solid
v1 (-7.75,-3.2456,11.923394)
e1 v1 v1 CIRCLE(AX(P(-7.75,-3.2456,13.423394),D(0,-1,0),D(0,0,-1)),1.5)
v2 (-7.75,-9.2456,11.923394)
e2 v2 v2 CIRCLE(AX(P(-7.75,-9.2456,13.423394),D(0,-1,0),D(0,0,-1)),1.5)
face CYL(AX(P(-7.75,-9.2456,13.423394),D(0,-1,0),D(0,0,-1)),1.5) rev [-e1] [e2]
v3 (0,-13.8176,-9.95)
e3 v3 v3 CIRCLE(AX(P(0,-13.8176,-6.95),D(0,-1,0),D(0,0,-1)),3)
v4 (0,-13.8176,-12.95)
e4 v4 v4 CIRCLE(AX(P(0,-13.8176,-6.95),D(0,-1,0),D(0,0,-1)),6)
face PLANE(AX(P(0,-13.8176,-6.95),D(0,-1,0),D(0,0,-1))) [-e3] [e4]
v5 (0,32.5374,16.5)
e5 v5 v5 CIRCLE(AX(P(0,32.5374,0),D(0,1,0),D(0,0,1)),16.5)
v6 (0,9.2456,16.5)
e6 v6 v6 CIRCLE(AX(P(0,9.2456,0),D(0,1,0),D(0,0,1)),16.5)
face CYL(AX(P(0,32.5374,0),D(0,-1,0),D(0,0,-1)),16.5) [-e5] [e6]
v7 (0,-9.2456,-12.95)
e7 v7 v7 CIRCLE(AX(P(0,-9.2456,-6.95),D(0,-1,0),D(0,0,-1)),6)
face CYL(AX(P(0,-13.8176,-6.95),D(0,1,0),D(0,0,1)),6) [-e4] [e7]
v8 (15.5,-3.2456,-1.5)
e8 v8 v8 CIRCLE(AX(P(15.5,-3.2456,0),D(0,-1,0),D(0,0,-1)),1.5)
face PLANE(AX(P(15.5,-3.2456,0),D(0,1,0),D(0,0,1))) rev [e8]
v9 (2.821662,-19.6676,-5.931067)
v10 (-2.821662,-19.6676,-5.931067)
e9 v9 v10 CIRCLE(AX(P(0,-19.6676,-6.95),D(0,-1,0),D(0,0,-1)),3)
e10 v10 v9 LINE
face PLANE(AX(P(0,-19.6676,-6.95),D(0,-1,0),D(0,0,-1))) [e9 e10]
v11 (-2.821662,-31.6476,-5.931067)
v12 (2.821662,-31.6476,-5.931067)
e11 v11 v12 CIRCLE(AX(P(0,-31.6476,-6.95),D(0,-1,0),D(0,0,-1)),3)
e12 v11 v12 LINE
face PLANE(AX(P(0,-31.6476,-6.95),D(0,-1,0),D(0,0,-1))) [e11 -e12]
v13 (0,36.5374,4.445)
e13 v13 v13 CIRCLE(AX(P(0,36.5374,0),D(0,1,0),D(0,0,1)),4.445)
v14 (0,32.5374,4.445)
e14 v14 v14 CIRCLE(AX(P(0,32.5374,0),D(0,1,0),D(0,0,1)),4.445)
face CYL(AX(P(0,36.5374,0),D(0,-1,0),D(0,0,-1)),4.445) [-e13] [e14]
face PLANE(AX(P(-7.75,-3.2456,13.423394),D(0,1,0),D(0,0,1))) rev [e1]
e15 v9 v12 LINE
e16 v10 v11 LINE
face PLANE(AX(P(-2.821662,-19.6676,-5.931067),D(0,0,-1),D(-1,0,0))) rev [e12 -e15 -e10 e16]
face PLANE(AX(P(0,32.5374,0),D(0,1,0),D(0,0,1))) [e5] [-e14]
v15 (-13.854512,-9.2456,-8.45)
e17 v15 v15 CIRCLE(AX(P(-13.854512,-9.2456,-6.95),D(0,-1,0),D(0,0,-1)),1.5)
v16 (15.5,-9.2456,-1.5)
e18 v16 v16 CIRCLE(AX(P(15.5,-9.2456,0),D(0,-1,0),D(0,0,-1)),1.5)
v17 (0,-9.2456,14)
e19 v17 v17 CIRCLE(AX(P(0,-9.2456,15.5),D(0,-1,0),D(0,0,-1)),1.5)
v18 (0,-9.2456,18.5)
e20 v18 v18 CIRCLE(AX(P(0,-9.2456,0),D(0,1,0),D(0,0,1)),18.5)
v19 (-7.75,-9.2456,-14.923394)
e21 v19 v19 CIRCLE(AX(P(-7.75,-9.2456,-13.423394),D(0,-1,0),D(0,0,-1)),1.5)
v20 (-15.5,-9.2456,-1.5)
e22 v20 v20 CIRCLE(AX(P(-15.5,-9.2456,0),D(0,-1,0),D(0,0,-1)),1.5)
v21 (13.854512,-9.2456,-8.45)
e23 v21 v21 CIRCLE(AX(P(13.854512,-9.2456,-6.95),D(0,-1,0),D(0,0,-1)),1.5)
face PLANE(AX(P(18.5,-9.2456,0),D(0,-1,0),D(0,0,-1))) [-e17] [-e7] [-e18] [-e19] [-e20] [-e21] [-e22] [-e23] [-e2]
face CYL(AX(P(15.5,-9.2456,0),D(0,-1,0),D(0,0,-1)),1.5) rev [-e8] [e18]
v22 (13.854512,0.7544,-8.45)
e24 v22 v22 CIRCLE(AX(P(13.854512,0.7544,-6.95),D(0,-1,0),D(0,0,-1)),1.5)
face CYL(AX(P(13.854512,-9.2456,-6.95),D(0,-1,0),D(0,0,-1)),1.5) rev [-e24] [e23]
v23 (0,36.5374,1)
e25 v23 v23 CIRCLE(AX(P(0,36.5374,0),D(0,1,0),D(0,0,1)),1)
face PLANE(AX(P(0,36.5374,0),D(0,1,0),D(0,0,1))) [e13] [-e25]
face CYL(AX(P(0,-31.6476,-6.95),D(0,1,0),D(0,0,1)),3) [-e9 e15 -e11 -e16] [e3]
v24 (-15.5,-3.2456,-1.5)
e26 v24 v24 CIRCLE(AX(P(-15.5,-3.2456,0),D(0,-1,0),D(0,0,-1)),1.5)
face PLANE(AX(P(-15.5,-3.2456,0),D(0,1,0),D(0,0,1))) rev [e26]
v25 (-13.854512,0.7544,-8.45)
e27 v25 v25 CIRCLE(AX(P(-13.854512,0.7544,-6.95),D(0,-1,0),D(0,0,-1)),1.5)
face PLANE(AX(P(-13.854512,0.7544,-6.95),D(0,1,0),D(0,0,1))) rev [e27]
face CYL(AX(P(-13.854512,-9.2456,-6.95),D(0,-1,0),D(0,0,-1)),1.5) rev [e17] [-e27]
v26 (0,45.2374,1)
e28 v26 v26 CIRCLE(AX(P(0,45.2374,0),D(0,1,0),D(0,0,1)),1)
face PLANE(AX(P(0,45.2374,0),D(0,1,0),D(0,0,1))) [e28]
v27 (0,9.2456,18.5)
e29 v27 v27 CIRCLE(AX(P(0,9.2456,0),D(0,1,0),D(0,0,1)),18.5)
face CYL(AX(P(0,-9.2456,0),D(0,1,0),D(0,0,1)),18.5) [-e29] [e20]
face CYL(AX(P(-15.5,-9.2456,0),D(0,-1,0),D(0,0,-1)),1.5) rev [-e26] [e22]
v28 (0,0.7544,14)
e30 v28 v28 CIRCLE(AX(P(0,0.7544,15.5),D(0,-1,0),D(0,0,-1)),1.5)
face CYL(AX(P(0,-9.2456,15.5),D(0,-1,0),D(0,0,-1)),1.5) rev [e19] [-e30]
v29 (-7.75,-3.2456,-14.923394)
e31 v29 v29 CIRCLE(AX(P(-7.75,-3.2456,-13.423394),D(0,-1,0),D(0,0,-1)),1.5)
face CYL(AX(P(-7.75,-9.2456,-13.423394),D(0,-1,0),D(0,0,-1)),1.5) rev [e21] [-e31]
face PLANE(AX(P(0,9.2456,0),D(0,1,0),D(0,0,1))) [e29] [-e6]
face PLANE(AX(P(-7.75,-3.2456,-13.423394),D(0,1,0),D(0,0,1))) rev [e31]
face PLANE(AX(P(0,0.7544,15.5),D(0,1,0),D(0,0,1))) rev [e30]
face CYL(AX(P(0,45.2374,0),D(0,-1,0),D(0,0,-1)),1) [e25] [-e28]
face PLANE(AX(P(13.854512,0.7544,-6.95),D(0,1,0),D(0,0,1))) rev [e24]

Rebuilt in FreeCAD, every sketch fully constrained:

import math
import FreeCAD as App
import Part
import Sketcher
from FreeCAD import Vector

doc = App.newDocument("Part")
body = doc.addObject("PartDesign::Body", "Body")

# Sketch on XY plane
sketch1 = body.newObject("Sketcher::SketchObject", "Sketch")
sketch1.AttachmentSupport = (doc.getObject("XY_Plane"), [""])
sketch1.MapMode = "FlatFace"
sketch1.addGeometry(Part.LineSegment(Vector(18, 9, 0), Vector(18, -9, 0)), False)
sketch1.addGeometry(Part.LineSegment(Vector(18, -9, 0), Vector(0, -9, 0)), False)
sketch1.addGeometry(Part.LineSegment(Vector(0, -9, 0), Vector(0, 9, 0)), False)
sketch1.addGeometry(Part.LineSegment(Vector(0, 9, 0), Vector(18, 9, 0)), False)
sketch1.addConstraint(Sketcher.Constraint("Coincident", 0, 2, 1, 1))
sketch1.addConstraint(Sketcher.Constraint("Coincident", 1, 2, 2, 1))
sketch1.addConstraint(Sketcher.Constraint("Coincident", 2, 2, 3, 1))
sketch1.addConstraint(Sketcher.Constraint("Coincident", 3, 2, 0, 1))
sketch1.addConstraint(Sketcher.Constraint("Vertical", 0))
sketch1.addConstraint(Sketcher.Constraint("Horizontal", 1))
sketch1.addConstraint(Sketcher.Constraint("Vertical", 2))
sketch1.addConstraint(Sketcher.Constraint("Horizontal", 3))
sketch1.addConstraint(Sketcher.Constraint("Symmetric", 1, 2, 2, 2, -1, 1))
sketch1.addConstraint(Sketcher.Constraint("DistanceX", 1, 2, 1, 1, 18.5))
sketch1.addConstraint(Sketcher.Constraint("DistanceY", 0, 2, 0, 1, 18.4912))
revolution = body.newObject("PartDesign::Revolution", "Revolution")
revolution.Profile = sketch1
revolution.ReferenceAxis = (sketch1, ["V_Axis"])
revolution.Angle = 360

# Sketch on XZ plane
sketch2 = body.newObject("Sketcher::SketchObject", "Sketch001")
sketch2.AttachmentSupport = (doc.getObject("XZ_Plane"), [""])
sketch2.MapMode = "FlatFace"
sketch2.AttachmentOffset = App.Placement(Vector(0, 0, 9.2456), App.Rotation())
sketch2.addGeometry(Part.Circle(Vector(0, -7, 0), Vector(0, 0, 1), 6), False)
sketch2.addConstraint(Sketcher.Constraint("PointOnObject", 0, 3, -2))
sketch2.addConstraint(Sketcher.Constraint("Diameter", 0, 12.0))
sketch2.addConstraint(Sketcher.Constraint("DistanceY", 0, 3, -1, 1, 6.95))
pad1 = body.newObject("PartDesign::Pad", "Pad")
pad1.Profile = sketch2
pad1.Length = 4.572

# Sketch on XZ plane
sketch3 = body.newObject("Sketcher::SketchObject", "Sketch002")
sketch3.AttachmentSupport = (doc.getObject("XZ_Plane"), [""])
sketch3.MapMode = "FlatFace"
sketch3.AttachmentOffset = App.Placement(Vector(0, 0, 13.8176), App.Rotation())
sketch3.addGeometry(Part.Circle(Vector(0, -7, 0), Vector(0, 0, 1), 3), False)
sketch3.addConstraint(Sketcher.Constraint("PointOnObject", 0, 3, -2))
sketch3.addConstraint(Sketcher.Constraint("Diameter", 0, 6.0))
sketch3.addConstraint(Sketcher.Constraint("DistanceY", 0, 3, -1, 1, 6.95))
pad2 = body.newObject("PartDesign::Pad", "Pad001")
pad2.Profile = sketch3
pad2.Length = 17.83

# Sketch on XZ plane
sketch4 = body.newObject("Sketcher::SketchObject", "Sketch003")
sketch4.AttachmentSupport = (doc.getObject("XZ_Plane"), [""])
sketch4.MapMode = "FlatFace"
sketch4.AttachmentOffset = App.Placement(Vector(0, 0, 31.6476), App.Rotation())
sketch4.addGeometry(Part.LineSegment(Vector(-2.8, -5.9, 0), Vector(2.8, -5.9, 0)), False)
sketch4.addGeometry(Part.ArcOfCircle(Part.Circle(Vector(0, -7, 0), Vector(0, 0, 1), 3), math.radians(20), math.radians(160)), False)
sketch4.addConstraint(Sketcher.Constraint("Coincident", 0, 1, 1, 2))
sketch4.addConstraint(Sketcher.Constraint("Coincident", 1, 1, 0, 2))
sketch4.addConstraint(Sketcher.Constraint("Horizontal", 0))
sketch4.addConstraint(Sketcher.Constraint("PointOnObject", 1, 3, -2))
sketch4.addConstraint(Sketcher.Constraint("Radius", 1, 3.0))
sketch4.addConstraint(Sketcher.Constraint("DistanceY", 1, 3, -1, 1, 6.95))
sketch4.addConstraint(Sketcher.Constraint("DistanceX", 0, 1, 0, 2, 5.643323))
pocket1 = body.newObject("PartDesign::Pocket", "Pocket")
pocket1.Profile = sketch4
pocket1.Length = 11.98

# Sketch on XZ plane
sketch5 = body.newObject("Sketcher::SketchObject", "Sketch004")
sketch5.AttachmentSupport = (doc.getObject("XZ_Plane"), [""])
sketch5.MapMode = "FlatFace"
sketch5.AttachmentOffset = App.Placement(Vector(0, 0, -9.2456), App.Rotation())
sketch5.addGeometry(Part.Circle(Vector(0, 0, 0), Vector(0, 0, 1), 16), False)
sketch5.addConstraint(Sketcher.Constraint("Coincident", 0, 3, -1, 1))
sketch5.addConstraint(Sketcher.Constraint("Diameter", 0, 33.0))
pad3 = body.newObject("PartDesign::Pad", "Pad002")
pad3.Profile = sketch5
pad3.Length = 23.2918
pad3.Reversed = True

# Sketch on XZ plane
sketch6 = body.newObject("Sketcher::SketchObject", "Sketch005")
sketch6.AttachmentSupport = (doc.getObject("XZ_Plane"), [""])
sketch6.MapMode = "FlatFace"
sketch6.AttachmentOffset = App.Placement(Vector(0, 0, -32.5374), App.Rotation())
sketch6.addGeometry(Part.Circle(Vector(0, 0, 0), Vector(0, 0, 1), 4.4), False)
sketch6.addConstraint(Sketcher.Constraint("Coincident", 0, 3, -1, 1))
sketch6.addConstraint(Sketcher.Constraint("Diameter", 0, 8.89))
pad4 = body.newObject("PartDesign::Pad", "Pad003")
pad4.Profile = sketch6
pad4.Length = 4
pad4.Reversed = True

# Sketch on XZ plane
sketch7 = body.newObject("Sketcher::SketchObject", "Sketch006")
sketch7.AttachmentSupport = (doc.getObject("XZ_Plane"), [""])
sketch7.MapMode = "FlatFace"
sketch7.AttachmentOffset = App.Placement(Vector(0, 0, -36.5374), App.Rotation())
sketch7.addGeometry(Part.Circle(Vector(0, 0, 0), Vector(0, 0, 1), 1), False)
sketch7.addConstraint(Sketcher.Constraint("Coincident", 0, 3, -1, 1))
sketch7.addConstraint(Sketcher.Constraint("Diameter", 0, 2.0))
pad5 = body.newObject("PartDesign::Pad", "Pad004")
pad5.Profile = sketch7
pad5.Length = 8.7
pad5.Reversed = True

# Sketch on XZ plane
sketch8 = body.newObject("Sketcher::SketchObject", "Sketch007")
sketch8.AttachmentSupport = (doc.getObject("XZ_Plane"), [""])
sketch8.MapMode = "FlatFace"
sketch8.AttachmentOffset = App.Placement(Vector(0, 0, 9.2456), App.Rotation())
sketch8.addGeometry(Part.Circle(Vector(-15.5, 0, 0), Vector(0, 0, 1), 1.5), False)
sketch8.addGeometry(Part.Circle(Vector(-7.8, 13.4, 0), Vector(0, 0, 1), 1.5), False)
sketch8.addGeometry(Part.Circle(Vector(15.5, 0, 0), Vector(0, 0, 1), 1.5), False)
sketch8.addGeometry(Part.Circle(Vector(-7.8, -13.4, 0), Vector(0, 0, 1), 1.5), False)
sketch8.addConstraint(Sketcher.Constraint("Equal", 0, 1))
sketch8.addConstraint(Sketcher.Constraint("Equal", 1, 2))
sketch8.addConstraint(Sketcher.Constraint("Equal", 2, 3))
sketch8.addConstraint(Sketcher.Constraint("Symmetric", 0, 3, 2, 3, -1, 1))
sketch8.addConstraint(Sketcher.Constraint("Symmetric", 1, 3, 3, 3, -1))
sketch8.addConstraint(Sketcher.Constraint("PointOnObject", 0, 3, -1))
sketch8.addConstraint(Sketcher.Constraint("Diameter", 0, 3.0))
sketch8.addConstraint(Sketcher.Constraint("DistanceX", 0, 3, 2, 3, 31.0))
sketch8.addConstraint(Sketcher.Constraint("DistanceX", 1, 3, -1, 1, 7.75))
sketch8.addConstraint(Sketcher.Constraint("DistanceY", -1, 1, 1, 3, 13.423394))
doc.recompute()
hole = body.newObject("PartDesign::Hole", "Hole")
hole.Profile = sketch8
hole.ThreadType = "None"
hole.Diameter = 3
hole.DepthType = "Dimension"
hole.Depth = 6
hole.DrillPoint = "Flat"

# Sketch on XZ plane
sketch9 = body.newObject("Sketcher::SketchObject", "Sketch008")
sketch9.AttachmentSupport = (doc.getObject("XZ_Plane"), [""])
sketch9.MapMode = "FlatFace"
sketch9.AttachmentOffset = App.Placement(Vector(0, 0, 9.2456), App.Rotation())
sketch9.addGeometry(Part.Circle(Vector(-13.9, -7, 0), Vector(0, 0, 1), 1.5), False)
sketch9.addGeometry(Part.Circle(Vector(13.9, -7, 0), Vector(0, 0, 1), 1.5), False)
sketch9.addGeometry(Part.Circle(Vector(0, 15.5, 0), Vector(0, 0, 1), 1.5), False)
sketch9.addConstraint(Sketcher.Constraint("Equal", 0, 1))
sketch9.addConstraint(Sketcher.Constraint("Equal", 1, 2))
sketch9.addConstraint(Sketcher.Constraint("Symmetric", 0, 3, 1, 3, -2))
sketch9.addConstraint(Sketcher.Constraint("PointOnObject", 2, 3, -2))
sketch9.addConstraint(Sketcher.Constraint("Diameter", 0, 3.0))
sketch9.addConstraint(Sketcher.Constraint("DistanceY", -1, 1, 2, 3, 15.5))
sketch9.addConstraint(Sketcher.Constraint("DistanceY", 0, 3, -1, 1, 6.95))
sketch9.addConstraint(Sketcher.Constraint("DistanceX", 0, 3, -1, 1, 13.854512))
doc.recompute()
hole2 = body.newObject("PartDesign::Hole", "Hole001")
hole2.Profile = sketch9
hole2.ThreadType = "None"
hole2.Diameter = 3
hole2.DepthType = "Dimension"
hole2.Depth = 10
hole2.DrillPoint = "Flat"

doc.recompute()
